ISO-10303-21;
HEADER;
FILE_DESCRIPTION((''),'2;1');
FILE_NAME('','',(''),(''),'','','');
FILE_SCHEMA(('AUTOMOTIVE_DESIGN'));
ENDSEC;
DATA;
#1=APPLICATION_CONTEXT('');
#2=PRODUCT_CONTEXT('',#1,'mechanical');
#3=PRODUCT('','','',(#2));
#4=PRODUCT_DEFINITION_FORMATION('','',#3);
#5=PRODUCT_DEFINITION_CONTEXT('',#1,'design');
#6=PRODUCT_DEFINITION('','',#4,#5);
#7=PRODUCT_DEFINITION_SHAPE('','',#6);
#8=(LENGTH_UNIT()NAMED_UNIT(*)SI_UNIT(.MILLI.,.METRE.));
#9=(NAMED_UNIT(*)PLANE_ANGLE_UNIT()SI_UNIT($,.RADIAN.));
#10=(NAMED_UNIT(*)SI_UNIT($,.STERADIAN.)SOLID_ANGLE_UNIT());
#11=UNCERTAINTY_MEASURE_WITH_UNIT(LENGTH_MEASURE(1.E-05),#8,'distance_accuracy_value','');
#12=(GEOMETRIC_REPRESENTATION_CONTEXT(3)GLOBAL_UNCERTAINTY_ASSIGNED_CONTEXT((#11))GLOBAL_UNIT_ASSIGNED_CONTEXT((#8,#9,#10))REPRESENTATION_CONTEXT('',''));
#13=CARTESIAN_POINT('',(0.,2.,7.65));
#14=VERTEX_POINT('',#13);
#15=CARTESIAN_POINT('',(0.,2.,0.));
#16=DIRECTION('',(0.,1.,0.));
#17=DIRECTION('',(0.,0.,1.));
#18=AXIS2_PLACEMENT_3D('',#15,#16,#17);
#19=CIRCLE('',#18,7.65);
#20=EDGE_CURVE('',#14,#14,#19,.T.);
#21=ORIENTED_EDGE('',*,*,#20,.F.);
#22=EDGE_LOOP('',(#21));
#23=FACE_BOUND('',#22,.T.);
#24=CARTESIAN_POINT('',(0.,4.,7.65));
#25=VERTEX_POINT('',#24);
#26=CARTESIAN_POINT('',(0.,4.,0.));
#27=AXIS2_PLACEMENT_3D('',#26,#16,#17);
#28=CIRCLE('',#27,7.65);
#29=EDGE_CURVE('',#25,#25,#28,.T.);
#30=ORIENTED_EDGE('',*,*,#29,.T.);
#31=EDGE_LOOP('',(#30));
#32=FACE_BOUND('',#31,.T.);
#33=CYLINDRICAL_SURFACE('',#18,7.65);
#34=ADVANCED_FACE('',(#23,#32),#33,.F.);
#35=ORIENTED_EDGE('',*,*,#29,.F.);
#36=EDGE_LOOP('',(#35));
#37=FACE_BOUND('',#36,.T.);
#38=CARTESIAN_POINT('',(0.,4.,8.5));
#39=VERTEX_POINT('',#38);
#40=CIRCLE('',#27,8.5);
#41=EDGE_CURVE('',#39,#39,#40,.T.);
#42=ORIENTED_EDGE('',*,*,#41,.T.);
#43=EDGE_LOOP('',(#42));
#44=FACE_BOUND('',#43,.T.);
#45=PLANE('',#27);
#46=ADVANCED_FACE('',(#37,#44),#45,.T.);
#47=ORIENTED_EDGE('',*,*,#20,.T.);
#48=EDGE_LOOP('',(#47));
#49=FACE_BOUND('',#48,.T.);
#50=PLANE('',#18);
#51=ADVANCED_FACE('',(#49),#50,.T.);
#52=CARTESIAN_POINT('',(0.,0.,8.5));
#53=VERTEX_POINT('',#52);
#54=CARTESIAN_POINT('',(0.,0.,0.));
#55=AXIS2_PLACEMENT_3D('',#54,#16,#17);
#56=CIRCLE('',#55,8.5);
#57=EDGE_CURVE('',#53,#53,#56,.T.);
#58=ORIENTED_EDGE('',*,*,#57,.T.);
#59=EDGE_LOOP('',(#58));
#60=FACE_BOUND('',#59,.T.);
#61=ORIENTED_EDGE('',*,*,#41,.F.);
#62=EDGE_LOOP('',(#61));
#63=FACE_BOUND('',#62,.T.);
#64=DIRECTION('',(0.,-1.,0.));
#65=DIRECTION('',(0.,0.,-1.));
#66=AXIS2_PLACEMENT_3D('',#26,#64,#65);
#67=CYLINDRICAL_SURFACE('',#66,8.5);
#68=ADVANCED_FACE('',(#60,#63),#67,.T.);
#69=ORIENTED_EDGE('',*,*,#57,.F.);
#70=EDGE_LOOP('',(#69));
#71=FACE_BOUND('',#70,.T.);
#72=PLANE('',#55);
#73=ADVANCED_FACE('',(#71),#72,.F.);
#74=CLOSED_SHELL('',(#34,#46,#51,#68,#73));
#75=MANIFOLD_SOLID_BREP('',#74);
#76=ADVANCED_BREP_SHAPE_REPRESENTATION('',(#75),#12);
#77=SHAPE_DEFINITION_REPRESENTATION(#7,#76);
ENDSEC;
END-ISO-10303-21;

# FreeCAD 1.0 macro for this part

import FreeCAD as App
import Part
import Sketcher
Q = App.Units.Quantity

doc = App.newDocument("Part")
params = doc.addObject("Spreadsheet::Sheet", "Params")
for row, (alias, value) in enumerate([
    ("sketch1_diameter", "17 mm"),
    ("pad1_length", "4 mm"),
    ("sketch2_diameter", "15.3 mm"),
    ("pocket1_length", "2 mm"),
], start=1):
    params.set(f"A{row}", alias)
    params.set(f"B{row}", "=" + value)
    params.setAlias(f"B{row}", alias)

body = doc.addObject("PartDesign::Body", "Body")

# Sketch on XZ plane
sketch1 = body.newObject("Sketcher::SketchObject", "Sketch")
sketch1.AttachmentSupport = (doc.getObject("XZ_Plane"), [""])
sketch1.MapMode = "FlatFace"
sketch1.addGeometry(Part.Circle(App.Vector(0, 0, 0), App.Vector(0, 0, 1), 8.5), False)
sketch1.addConstraint([
    Sketcher.Constraint("Coincident", 0, 3, -1, 1),
    Sketcher.Constraint("Diameter", 0, Q("17 mm")),
])
sketch1.setExpression("Constraints[1]", "Params.sketch1_diameter")
pad1 = body.newObject("PartDesign::Pad", "Pad")
pad1.Profile = sketch1
pad1.setExpression("Length", "Params.pad1_length")
pad1.Reversed = True

# Sketch on XZ plane
sketch2 = body.newObject("Sketcher::SketchObject", "Sketch001")
sketch2.AttachmentSupport = (doc.getObject("XZ_Plane"), [""])
sketch2.MapMode = "FlatFace"
sketch2.AttachmentOffset = App.Placement(App.Vector(0, 0, -4), App.Rotation())
sketch2.addGeometry(Part.Circle(App.Vector(0, 0, 0), App.Vector(0, 0, 1), 7.65), False)
sketch2.addConstraint([
    Sketcher.Constraint("Coincident", 0, 3, -1, 1),
    Sketcher.Constraint("Diameter", 0, Q("15.3 mm")),
])
sketch2.setExpression("Constraints[1]", "Params.sketch2_diameter")
pocket1 = body.newObject("PartDesign::Pocket", "Pocket")
pocket1.Profile = sketch2
pocket1.setExpression("Length", "Params.pocket1_length")
pocket1.Reversed = True

doc.recompute()
